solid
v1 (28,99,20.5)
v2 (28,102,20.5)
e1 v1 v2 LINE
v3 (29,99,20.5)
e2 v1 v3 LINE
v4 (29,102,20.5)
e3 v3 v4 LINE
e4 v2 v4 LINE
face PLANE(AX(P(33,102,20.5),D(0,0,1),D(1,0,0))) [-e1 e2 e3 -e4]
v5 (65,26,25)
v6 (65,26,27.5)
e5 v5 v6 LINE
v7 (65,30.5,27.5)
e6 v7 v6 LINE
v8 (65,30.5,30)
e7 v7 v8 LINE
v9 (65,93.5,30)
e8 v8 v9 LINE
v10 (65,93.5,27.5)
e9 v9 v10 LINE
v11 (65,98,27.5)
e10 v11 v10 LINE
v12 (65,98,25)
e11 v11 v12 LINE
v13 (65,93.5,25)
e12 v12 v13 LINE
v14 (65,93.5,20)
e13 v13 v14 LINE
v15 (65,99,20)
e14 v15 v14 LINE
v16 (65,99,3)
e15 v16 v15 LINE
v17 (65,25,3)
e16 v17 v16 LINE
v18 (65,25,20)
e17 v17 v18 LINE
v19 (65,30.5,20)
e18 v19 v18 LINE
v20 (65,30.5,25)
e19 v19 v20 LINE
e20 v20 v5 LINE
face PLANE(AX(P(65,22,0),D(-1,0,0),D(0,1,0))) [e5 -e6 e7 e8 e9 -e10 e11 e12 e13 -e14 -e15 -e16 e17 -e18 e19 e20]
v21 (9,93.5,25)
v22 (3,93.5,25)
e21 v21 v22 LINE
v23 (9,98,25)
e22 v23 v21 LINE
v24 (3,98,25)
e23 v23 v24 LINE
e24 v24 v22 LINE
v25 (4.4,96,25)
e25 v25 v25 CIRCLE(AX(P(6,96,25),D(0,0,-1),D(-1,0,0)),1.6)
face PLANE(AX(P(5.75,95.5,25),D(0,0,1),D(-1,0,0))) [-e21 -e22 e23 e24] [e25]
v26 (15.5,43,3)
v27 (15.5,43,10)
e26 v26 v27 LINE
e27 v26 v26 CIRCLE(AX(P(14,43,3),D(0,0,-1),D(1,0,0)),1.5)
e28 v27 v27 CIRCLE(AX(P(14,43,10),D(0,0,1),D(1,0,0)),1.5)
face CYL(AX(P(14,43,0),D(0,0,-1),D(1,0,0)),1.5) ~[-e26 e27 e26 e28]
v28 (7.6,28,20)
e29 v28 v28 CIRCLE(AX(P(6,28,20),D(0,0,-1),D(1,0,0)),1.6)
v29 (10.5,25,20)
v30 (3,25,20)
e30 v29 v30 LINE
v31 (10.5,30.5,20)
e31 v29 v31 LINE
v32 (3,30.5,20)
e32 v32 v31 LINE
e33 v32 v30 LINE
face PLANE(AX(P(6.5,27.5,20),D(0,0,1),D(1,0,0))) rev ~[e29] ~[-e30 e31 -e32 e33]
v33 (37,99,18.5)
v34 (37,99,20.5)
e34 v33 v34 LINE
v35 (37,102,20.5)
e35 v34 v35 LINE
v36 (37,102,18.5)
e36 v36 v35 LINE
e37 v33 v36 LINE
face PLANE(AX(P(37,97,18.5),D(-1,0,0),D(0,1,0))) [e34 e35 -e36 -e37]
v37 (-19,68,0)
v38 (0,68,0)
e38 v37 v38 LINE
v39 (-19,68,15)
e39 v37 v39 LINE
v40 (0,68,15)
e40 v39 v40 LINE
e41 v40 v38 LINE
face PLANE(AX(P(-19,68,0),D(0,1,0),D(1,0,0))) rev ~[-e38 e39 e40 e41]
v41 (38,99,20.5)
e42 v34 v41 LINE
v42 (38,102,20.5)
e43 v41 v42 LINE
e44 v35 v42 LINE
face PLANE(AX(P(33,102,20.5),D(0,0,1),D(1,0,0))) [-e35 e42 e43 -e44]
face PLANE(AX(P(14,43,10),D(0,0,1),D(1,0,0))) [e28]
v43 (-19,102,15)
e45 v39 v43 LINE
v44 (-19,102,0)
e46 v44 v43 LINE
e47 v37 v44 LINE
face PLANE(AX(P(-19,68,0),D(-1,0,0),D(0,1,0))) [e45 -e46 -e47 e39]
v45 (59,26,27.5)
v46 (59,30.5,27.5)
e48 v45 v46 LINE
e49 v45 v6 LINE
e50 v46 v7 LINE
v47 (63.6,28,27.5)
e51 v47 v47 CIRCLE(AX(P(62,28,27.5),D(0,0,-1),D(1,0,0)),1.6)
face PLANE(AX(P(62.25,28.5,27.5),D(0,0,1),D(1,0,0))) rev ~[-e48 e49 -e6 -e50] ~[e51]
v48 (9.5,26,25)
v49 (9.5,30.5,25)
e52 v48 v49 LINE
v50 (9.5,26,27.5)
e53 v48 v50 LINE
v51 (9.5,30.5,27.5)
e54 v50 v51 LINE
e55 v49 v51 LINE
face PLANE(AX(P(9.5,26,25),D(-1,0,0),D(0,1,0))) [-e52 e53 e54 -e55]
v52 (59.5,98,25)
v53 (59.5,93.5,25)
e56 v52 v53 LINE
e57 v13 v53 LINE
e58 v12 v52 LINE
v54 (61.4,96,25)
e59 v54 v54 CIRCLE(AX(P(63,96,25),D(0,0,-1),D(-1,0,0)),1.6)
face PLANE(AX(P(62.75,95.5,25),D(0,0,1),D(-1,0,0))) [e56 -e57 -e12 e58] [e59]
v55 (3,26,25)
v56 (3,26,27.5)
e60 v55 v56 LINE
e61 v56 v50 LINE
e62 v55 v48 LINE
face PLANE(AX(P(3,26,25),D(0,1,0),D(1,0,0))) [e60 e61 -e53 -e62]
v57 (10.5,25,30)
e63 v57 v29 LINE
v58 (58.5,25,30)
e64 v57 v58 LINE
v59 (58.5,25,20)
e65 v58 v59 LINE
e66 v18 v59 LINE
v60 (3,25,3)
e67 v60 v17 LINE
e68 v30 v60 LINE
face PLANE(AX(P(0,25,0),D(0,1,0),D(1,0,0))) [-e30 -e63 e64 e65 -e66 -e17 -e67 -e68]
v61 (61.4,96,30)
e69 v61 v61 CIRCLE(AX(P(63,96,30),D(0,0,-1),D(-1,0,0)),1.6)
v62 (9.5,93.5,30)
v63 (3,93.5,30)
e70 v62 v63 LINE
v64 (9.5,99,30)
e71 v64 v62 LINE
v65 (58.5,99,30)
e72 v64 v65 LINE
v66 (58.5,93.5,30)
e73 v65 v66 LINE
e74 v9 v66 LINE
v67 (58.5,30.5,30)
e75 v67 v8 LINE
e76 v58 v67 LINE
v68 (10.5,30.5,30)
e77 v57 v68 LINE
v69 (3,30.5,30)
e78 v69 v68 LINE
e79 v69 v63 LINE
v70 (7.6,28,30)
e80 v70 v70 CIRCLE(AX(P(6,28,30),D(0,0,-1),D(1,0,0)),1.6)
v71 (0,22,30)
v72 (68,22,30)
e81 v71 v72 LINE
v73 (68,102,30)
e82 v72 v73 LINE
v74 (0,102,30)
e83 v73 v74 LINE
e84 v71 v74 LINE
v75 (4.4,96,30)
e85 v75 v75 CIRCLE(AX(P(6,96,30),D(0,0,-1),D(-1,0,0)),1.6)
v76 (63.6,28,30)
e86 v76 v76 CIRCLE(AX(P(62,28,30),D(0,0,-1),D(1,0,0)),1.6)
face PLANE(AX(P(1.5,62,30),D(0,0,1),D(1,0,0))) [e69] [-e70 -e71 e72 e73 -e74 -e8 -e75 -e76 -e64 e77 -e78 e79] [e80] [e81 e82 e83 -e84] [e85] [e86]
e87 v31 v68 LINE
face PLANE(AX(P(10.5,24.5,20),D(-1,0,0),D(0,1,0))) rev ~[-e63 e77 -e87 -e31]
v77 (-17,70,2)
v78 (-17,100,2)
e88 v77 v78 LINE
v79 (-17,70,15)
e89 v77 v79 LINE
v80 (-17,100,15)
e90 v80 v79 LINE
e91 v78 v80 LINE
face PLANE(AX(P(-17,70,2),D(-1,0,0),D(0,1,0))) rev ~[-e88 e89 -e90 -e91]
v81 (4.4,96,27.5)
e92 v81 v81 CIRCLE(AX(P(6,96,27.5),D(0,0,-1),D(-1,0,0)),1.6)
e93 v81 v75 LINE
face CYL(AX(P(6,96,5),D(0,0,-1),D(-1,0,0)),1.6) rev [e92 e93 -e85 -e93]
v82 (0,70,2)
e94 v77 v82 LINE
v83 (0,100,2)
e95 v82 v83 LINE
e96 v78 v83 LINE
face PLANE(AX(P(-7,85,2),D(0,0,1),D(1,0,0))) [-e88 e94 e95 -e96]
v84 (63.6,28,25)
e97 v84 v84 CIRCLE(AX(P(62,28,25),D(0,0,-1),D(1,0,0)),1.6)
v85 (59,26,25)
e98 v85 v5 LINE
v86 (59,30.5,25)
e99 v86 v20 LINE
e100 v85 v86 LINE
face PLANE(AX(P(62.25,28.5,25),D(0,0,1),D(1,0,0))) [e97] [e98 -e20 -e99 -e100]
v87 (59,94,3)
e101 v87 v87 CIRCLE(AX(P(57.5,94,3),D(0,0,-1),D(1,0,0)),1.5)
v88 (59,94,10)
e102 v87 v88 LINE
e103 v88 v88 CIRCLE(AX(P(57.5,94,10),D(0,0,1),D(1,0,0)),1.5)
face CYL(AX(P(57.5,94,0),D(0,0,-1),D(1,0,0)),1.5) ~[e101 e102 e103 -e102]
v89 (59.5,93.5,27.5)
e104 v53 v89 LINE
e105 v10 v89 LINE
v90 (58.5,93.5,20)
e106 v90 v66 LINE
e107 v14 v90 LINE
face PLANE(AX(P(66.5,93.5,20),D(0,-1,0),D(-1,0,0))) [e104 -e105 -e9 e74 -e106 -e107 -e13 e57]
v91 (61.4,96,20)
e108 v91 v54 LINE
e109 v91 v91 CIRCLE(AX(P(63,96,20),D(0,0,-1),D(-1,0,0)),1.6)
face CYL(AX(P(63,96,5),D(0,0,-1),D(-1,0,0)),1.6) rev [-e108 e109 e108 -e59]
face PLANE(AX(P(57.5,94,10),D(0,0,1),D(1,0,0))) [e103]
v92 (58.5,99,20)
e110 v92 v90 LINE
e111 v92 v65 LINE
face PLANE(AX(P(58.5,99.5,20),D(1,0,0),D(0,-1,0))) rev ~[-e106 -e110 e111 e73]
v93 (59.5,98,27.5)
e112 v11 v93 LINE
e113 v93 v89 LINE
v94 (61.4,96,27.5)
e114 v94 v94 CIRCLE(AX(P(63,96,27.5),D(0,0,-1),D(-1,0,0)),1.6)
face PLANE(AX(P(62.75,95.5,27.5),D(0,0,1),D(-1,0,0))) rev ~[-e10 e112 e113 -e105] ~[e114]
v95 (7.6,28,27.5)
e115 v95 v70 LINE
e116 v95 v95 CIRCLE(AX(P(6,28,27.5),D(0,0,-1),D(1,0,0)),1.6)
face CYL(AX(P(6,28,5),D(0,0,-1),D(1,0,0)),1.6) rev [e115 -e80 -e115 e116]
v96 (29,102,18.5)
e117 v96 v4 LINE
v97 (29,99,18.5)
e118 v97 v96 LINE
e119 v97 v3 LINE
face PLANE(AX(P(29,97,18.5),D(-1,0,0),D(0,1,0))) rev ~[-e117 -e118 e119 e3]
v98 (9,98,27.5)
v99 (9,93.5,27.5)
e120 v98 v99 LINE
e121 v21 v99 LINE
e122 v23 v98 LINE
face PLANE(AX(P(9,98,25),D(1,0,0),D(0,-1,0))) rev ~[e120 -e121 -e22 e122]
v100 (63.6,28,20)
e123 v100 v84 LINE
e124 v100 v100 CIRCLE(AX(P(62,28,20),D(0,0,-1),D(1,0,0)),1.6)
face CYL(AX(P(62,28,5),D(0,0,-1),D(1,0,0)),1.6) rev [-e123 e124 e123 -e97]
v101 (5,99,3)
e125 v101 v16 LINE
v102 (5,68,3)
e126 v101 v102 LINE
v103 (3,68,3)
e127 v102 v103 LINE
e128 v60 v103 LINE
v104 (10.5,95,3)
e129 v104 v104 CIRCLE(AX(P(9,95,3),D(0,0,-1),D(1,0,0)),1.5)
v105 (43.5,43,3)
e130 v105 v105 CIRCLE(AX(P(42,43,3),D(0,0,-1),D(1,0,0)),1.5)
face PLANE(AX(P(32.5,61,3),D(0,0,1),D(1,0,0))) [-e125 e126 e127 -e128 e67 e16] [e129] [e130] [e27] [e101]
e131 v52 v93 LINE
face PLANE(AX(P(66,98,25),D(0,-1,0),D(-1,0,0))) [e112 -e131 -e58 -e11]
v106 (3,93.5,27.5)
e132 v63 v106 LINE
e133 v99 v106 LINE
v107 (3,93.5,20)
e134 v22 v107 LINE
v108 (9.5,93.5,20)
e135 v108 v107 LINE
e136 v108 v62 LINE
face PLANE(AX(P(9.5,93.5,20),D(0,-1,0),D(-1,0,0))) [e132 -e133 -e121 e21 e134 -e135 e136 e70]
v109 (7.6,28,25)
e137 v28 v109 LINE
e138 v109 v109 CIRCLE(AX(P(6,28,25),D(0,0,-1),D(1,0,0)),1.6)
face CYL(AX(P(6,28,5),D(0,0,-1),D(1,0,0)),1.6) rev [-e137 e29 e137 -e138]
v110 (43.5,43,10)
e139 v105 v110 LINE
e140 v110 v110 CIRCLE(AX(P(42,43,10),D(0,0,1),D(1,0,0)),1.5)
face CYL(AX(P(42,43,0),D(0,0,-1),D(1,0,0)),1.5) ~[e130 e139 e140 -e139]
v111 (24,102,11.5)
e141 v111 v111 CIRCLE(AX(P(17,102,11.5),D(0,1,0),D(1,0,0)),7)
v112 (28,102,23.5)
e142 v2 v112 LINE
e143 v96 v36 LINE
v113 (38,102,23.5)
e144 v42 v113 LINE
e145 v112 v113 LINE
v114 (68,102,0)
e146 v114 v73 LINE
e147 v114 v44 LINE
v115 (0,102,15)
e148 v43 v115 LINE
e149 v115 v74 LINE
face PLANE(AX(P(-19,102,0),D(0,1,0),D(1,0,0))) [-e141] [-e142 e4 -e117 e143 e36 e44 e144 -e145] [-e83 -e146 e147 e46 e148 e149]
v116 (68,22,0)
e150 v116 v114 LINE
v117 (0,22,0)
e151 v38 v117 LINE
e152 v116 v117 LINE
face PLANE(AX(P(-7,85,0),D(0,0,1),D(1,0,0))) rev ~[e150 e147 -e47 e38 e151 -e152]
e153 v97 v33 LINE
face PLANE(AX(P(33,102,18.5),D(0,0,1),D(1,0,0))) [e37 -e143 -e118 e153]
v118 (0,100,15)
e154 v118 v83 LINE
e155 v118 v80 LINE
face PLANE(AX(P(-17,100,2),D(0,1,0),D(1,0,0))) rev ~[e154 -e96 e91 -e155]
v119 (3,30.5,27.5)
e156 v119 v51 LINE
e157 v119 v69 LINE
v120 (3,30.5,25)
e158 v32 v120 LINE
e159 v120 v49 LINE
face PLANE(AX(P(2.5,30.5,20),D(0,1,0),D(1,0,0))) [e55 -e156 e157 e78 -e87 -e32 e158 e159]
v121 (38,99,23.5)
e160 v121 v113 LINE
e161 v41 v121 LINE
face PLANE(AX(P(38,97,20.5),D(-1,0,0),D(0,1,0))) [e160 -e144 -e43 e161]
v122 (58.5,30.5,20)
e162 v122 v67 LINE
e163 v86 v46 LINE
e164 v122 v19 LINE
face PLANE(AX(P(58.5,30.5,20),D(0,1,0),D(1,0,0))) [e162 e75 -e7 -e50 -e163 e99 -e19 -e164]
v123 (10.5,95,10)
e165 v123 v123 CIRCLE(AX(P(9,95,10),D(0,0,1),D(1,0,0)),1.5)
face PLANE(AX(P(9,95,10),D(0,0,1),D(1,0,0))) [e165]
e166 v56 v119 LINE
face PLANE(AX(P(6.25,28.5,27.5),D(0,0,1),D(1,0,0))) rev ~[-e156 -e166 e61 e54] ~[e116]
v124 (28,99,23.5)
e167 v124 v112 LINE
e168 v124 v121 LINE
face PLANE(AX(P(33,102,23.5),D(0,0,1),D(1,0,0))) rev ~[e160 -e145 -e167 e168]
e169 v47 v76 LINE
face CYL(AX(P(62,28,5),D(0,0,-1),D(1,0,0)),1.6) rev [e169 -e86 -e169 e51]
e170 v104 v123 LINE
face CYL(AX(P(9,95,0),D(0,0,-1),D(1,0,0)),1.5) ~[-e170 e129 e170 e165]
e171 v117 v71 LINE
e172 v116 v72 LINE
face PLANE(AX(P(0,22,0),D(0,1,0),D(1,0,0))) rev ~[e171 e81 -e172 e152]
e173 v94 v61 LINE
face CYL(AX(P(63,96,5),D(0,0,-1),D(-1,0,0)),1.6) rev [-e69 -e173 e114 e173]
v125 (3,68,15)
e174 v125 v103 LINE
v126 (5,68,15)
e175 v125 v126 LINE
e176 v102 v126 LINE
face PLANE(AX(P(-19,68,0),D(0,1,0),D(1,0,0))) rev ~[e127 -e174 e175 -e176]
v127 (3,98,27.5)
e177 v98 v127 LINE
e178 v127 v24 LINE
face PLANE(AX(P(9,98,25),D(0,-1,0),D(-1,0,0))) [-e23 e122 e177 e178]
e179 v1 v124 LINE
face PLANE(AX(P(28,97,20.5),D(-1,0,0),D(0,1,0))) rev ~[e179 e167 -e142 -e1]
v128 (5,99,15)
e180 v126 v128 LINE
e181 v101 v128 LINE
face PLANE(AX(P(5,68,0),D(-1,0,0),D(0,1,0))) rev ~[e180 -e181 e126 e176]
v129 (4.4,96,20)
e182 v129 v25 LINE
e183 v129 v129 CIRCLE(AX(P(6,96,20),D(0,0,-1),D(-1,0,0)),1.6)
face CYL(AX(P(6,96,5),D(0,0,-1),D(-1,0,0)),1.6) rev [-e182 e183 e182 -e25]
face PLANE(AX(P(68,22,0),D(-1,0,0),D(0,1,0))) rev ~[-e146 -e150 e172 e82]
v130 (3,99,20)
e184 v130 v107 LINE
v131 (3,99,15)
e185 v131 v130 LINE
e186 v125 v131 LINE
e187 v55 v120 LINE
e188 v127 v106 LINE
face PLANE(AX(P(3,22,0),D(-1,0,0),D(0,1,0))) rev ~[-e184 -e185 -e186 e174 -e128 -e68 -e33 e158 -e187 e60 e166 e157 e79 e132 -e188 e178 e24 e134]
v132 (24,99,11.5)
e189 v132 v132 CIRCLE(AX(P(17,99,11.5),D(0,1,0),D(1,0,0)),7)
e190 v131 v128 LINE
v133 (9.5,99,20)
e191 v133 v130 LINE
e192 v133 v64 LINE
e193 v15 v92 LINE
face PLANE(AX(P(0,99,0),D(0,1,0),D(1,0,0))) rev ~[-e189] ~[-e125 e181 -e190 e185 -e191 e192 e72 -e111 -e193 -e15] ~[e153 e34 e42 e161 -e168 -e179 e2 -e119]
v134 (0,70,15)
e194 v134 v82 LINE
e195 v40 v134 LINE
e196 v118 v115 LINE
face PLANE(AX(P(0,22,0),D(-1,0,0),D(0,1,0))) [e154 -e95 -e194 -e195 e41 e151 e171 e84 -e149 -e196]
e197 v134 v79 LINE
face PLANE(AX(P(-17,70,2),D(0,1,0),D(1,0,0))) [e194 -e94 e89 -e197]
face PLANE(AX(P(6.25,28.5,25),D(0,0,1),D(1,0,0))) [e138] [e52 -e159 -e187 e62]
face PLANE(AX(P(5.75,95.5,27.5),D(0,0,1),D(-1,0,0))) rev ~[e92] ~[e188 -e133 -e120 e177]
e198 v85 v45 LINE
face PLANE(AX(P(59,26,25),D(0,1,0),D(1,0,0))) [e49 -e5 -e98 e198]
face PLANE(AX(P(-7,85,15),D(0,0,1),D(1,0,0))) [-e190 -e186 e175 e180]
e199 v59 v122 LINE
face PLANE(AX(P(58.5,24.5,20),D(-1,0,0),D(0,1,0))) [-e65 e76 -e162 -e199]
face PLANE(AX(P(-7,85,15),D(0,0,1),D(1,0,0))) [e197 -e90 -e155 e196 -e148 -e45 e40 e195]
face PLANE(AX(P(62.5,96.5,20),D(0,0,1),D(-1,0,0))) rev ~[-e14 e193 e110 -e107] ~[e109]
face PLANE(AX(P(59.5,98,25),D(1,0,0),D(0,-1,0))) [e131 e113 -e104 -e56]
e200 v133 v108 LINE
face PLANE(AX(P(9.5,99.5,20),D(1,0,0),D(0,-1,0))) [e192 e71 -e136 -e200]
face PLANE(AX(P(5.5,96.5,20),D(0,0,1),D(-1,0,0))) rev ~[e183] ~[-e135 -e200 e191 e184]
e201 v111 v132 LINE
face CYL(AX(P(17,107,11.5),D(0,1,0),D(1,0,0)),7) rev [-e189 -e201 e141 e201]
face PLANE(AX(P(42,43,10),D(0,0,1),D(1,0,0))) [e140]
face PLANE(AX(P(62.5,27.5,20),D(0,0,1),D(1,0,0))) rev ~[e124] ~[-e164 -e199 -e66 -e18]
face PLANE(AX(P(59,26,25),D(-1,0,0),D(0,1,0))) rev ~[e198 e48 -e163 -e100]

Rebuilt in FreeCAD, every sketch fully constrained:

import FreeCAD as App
import Part
import Sketcher

V = App.Vector


def add_polygon(sketch, points):
    """Adds a closed chain of lines whose ends are joined by coincident constraints."""
    first, n = sketch.GeometryCount, len(points)
    for a, b in zip(points, points[1:] + points[:1]):
        sketch.addGeometry(Part.LineSegment(App.Vector(*a, 0), App.Vector(*b, 0)), False)
    for i in range(n):
        sketch.addConstraint(Sketcher.Constraint("Coincident", first + i, 2, first + (i + 1) % n, 1))

doc = App.newDocument("Part")
body = doc.addObject("PartDesign::Body", "Body")

sketch1 = body.newObject("Sketcher::SketchObject", "Sketch")
sketch1.AttachmentSupport = (doc.getObject("XY_Plane"), [""])
sketch1.MapMode = "FlatFace"
sketch1.AttachmentOffset = App.Placement(V(0, 0, 2), App.Rotation())
add_polygon(sketch1, [(-17, 100), (-17, 70), (3, 70), (3, 100)])
sketch1.addConstraint(Sketcher.Constraint("Vertical", 0))
sketch1.addConstraint(Sketcher.Constraint("Horizontal", 1))
sketch1.addConstraint(Sketcher.Constraint("Vertical", 2))
sketch1.addConstraint(Sketcher.Constraint("Horizontal", 3))
sketch1.addConstraint(Sketcher.Constraint("DistanceX", 1, 1, 1, 2, 20.0))
sketch1.addConstraint(Sketcher.Constraint("DistanceY", 0, 2, 0, 1, 30.0))
sketch1.addConstraint(Sketcher.Constraint("DistanceX", 0, 2, -1, 1, 17.0))
sketch1.addConstraint(Sketcher.Constraint("DistanceY", -1, 1, 0, 2, 70.0))
pad1 = body.newObject("PartDesign::Pad", "Pad")
pad1.Profile = sketch1
pad1.Length = 15
body2 = doc.addObject("PartDesign::Body", "Body001")

sketch2 = body2.newObject("Sketcher::SketchObject", "Sketch001")
sketch2.AttachmentSupport = (doc.getObject("XY_Plane001"), [""])
sketch2.MapMode = "FlatFace"
add_polygon(sketch2, [(-19, 102), (-19, 68), (5, 68), (5, 102)])
sketch2.addConstraint(Sketcher.Constraint("Vertical", 0))
sketch2.addConstraint(Sketcher.Constraint("Horizontal", 1))
sketch2.addConstraint(Sketcher.Constraint("Vertical", 2))
sketch2.addConstraint(Sketcher.Constraint("Horizontal", 3))
sketch2.addConstraint(Sketcher.Constraint("DistanceX", 1, 1, 1, 2, 24.0))
sketch2.addConstraint(Sketcher.Constraint("DistanceY", 0, 2, 0, 1, 34.0))
sketch2.addConstraint(Sketcher.Constraint("DistanceX", 0, 2, -1, 1, 19.0))
sketch2.addConstraint(Sketcher.Constraint("DistanceY", -1, 1, 0, 2, 68.0))
pad2 = body2.newObject("PartDesign::Pad", "Pad001")
pad2.Profile = sketch2
pad2.Length = 15
doc.recompute()

boolean = body2.newObject("PartDesign::Boolean", "Boolean")
boolean.Type = "Cut"
boolean.addObjects([body])
body3 = doc.addObject("PartDesign::Body", "Body002")

sketch3 = body3.newObject("Sketcher::SketchObject", "Sketch002")
sketch3.AttachmentSupport = (doc.getObject("XY_Plane002"), [""])
sketch3.MapMode = "FlatFace"
sketch3.addGeometry(Part.Circle(V(6, 29, 0), V(0, 0, 1), 1.6), False)
sketch3.addConstraint(Sketcher.Constraint("Diameter", 0, 3.2))
sketch3.addConstraint(Sketcher.Constraint("DistanceX", -1, 1, 0, 3, 6.0))
sketch3.addConstraint(Sketcher.Constraint("DistanceY", -1, 1, 0, 3, 29.0))
pad3 = body3.newObject("PartDesign::Pad", "Pad002")
pad3.Profile = sketch3
pad3.Length = 30
body4 = doc.addObject("PartDesign::Body", "Body003")

sketch4 = body4.newObject("Sketcher::SketchObject", "Sketch003")
sketch4.AttachmentSupport = (doc.getObject("XY_Plane003"), [""])
sketch4.MapMode = "FlatFace"
sketch4.AttachmentOffset = App.Placement(V(0, 0, 20), App.Rotation())
add_polygon(sketch4, [(3, 32), (3, 27), (10, 27), (10, 32)])
sketch4.addConstraint(Sketcher.Constraint("Vertical", 0))
sketch4.addConstraint(Sketcher.Constraint("Horizontal", 1))
sketch4.addConstraint(Sketcher.Constraint("Vertical", 2))
sketch4.addConstraint(Sketcher.Constraint("Horizontal", 3))
sketch4.addConstraint(Sketcher.Constraint("DistanceY", 0, 2, 0, 1, 5.0))
sketch4.addConstraint(Sketcher.Constraint("DistanceX", 1, 1, 1, 2, 6.5))
sketch4.addConstraint(Sketcher.Constraint("DistanceX", -1, 1, 0, 2, 3.0))
sketch4.addConstraint(Sketcher.Constraint("DistanceY", -1, 1, 0, 2, 27.0))
pad4 = body4.newObject("PartDesign::Pad", "Pad003")
pad4.Profile = sketch4
pad4.Length = 2.5
body5 = doc.addObject("PartDesign::Body", "Body004")

sketch5 = body5.newObject("Sketcher::SketchObject", "Sketch004")
sketch5.AttachmentSupport = (doc.getObject("XY_Plane004"), [""])
sketch5.MapMode = "FlatFace"
sketch5.AttachmentOffset = App.Placement(V(0, 0, 15), App.Rotation())
add_polygon(sketch5, [(2, 32), (2, 26), (10, 26), (10, 32)])
sketch5.addConstraint(Sketcher.Constraint("Vertical", 0))
sketch5.addConstraint(Sketcher.Constraint("Horizontal", 1))
sketch5.addConstraint(Sketcher.Constraint("Vertical", 2))
sketch5.addConstraint(Sketcher.Constraint("Horizontal", 3))
sketch5.addConstraint(Sketcher.Constraint("DistanceX", 1, 1, 1, 2, 8.0))
sketch5.addConstraint(Sketcher.Constraint("DistanceY", 0, 2, 0, 1, 6.0))
sketch5.addConstraint(Sketcher.Constraint("DistanceX", -1, 1, 0, 2, 2.5))
sketch5.addConstraint(Sketcher.Constraint("DistanceY", -1, 1, 0, 2, 25.5))
pad5 = body5.newObject("PartDesign::Pad", "Pad004")
pad5.Profile = sketch5
pad5.Length = 10
doc.recompute()

boolean2 = body5.newObject("PartDesign::Boolean", "Boolean001")
boolean2.Type = "Cut"
boolean2.addObjects([body4])
doc.recompute()

boolean3 = body5.newObject("PartDesign::Boolean", "Boolean002")
boolean3.Type = "Cut"
boolean3.addObjects([body3])
body6 = doc.addObject("PartDesign::Body", "Body005")
doc.recompute()

body5.Placement = App.Placement(V(69, 125, 5), App.Rotation(V(0, 0, 1), 180))
boolean4 = body6.newObject("PartDesign::Boolean", "Boolean003")
boolean4.Type = "Fuse"
boolean4.addObjects([body5])
body7 = doc.addObject("PartDesign::Body", "Body006")

sketch6 = body7.newObject("Sketcher::SketchObject", "Sketch005")
sketch6.AttachmentSupport = (doc.getObject("XY_Plane006"), [""])
sketch6.MapMode = "FlatFace"
sketch6.addGeometry(Part.Circle(V(6, 29, 0), V(0, 0, 1), 1.6), False)
sketch6.addConstraint(Sketcher.Constraint("Diameter", 0, 3.2))
sketch6.addConstraint(Sketcher.Constraint("DistanceX", -1, 1, 0, 3, 6.0))
sketch6.addConstraint(Sketcher.Constraint("DistanceY", -1, 1, 0, 3, 29.0))
pad6 = body7.newObject("PartDesign::Pad", "Pad005")
pad6.Profile = sketch6
pad6.Length = 30
body8 = doc.addObject("PartDesign::Body", "Body007")

sketch7 = body8.newObject("Sketcher::SketchObject", "Sketch006")
sketch7.AttachmentSupport = (doc.getObject("XY_Plane007"), [""])
sketch7.MapMode = "FlatFace"
sketch7.AttachmentOffset = App.Placement(V(0, 0, 20), App.Rotation())
add_polygon(sketch7, [(3, 32), (3, 27), (10, 27), (10, 32)])
sketch7.addConstraint(Sketcher.Constraint("Vertical", 0))
sketch7.addConstraint(Sketcher.Constraint("Horizontal", 1))
sketch7.addConstraint(Sketcher.Constraint("Vertical", 2))
sketch7.addConstraint(Sketcher.Constraint("Horizontal", 3))
sketch7.addConstraint(Sketcher.Constraint("DistanceY", 0, 2, 0, 1, 5.0))
sketch7.addConstraint(Sketcher.Constraint("DistanceX", 1, 1, 1, 2, 6.5))
sketch7.addConstraint(Sketcher.Constraint("DistanceX", -1, 1, 0, 2, 3.0))
sketch7.addConstraint(Sketcher.Constraint("DistanceY", -1, 1, 0, 2, 27.0))
pad7 = body8.newObject("PartDesign::Pad", "Pad006")
pad7.Profile = sketch7
pad7.Length = 2.5
body9 = doc.addObject("PartDesign::Body", "Body008")

sketch8 = body9.newObject("Sketcher::SketchObject", "Sketch007")
sketch8.AttachmentSupport = (doc.getObject("XY_Plane008"), [""])
sketch8.MapMode = "FlatFace"
sketch8.AttachmentOffset = App.Placement(V(0, 0, 15), App.Rotation())
add_polygon(sketch8, [(2, 32), (2, 26), (10, 26), (10, 32)])
sketch8.addConstraint(Sketcher.Constraint("Vertical", 0))
sketch8.addConstraint(Sketcher.Constraint("Horizontal", 1))
sketch8.addConstraint(Sketcher.Constraint("Vertical", 2))
sketch8.addConstraint(Sketcher.Constraint("Horizontal", 3))
sketch8.addConstraint(Sketcher.Constraint("DistanceX", 1, 1, 1, 2, 8.0))
sketch8.addConstraint(Sketcher.Constraint("DistanceY", 0, 2, 0, 1, 6.0))
sketch8.addConstraint(Sketcher.Constraint("DistanceX", -1, 1, 0, 2, 2.5))
sketch8.addConstraint(Sketcher.Constraint("DistanceY", -1, 1, 0, 2, 25.5))
pad8 = body9.newObject("PartDesign::Pad", "Pad007")
pad8.Profile = sketch8
pad8.Length = 10
doc.recompute()

boolean5 = body9.newObject("PartDesign::Boolean", "Boolean004")
boolean5.Type = "Cut"
boolean5.addObjects([body8])
doc.recompute()

boolean6 = body9.newObject("PartDesign::Boolean", "Boolean005")
boolean6.Type = "Cut"
boolean6.addObjects([body7])
body10 = doc.addObject("PartDesign::Body", "Body009")
doc.recompute()

body9.Placement = App.Placement(V(56, -1, 5), App.Rotation(V(0, 0, 1), 0))
boolean7 = body10.newObject("PartDesign::Boolean", "Boolean006")
boolean7.Type = "Fuse"
boolean7.addObjects([body9])
body11 = doc.addObject("PartDesign::Body", "Body010")

sketch9 = body11.newObject("Sketcher::SketchObject", "Sketch008")
sketch9.AttachmentSupport = (doc.getObject("XY_Plane010"), [""])
sketch9.MapMode = "FlatFace"
sketch9.addGeometry(Part.Circle(V(6, 29, 0), V(0, 0, 1), 1.6), False)
sketch9.addConstraint(Sketcher.Constraint("Diameter", 0, 3.2))
sketch9.addConstraint(Sketcher.Constraint("DistanceX", -1, 1, 0, 3, 6.0))
sketch9.addConstraint(Sketcher.Constraint("DistanceY", -1, 1, 0, 3, 29.0))
pad9 = body11.newObject("PartDesign::Pad", "Pad008")
pad9.Profile = sketch9
pad9.Length = 30
body12 = doc.addObject("PartDesign::Body", "Body011")

sketch10 = body12.newObject("Sketcher::SketchObject", "Sketch009")
sketch10.AttachmentSupport = (doc.getObject("XY_Plane011"), [""])
sketch10.MapMode = "FlatFace"
sketch10.AttachmentOffset = App.Placement(V(0, 0, 20), App.Rotation())
add_polygon(sketch10, [(3, 32), (3, 27), (10, 27), (10, 32)])
sketch10.addConstraint(Sketcher.Constraint("Vertical", 0))
sketch10.addConstraint(Sketcher.Constraint("Horizontal", 1))
sketch10.addConstraint(Sketcher.Constraint("Vertical", 2))
sketch10.addConstraint(Sketcher.Constraint("Horizontal", 3))
sketch10.addConstraint(Sketcher.Constraint("DistanceY", 0, 2, 0, 1, 5.0))
sketch10.addConstraint(Sketcher.Constraint("DistanceX", 1, 1, 1, 2, 6.5))
sketch10.addConstraint(Sketcher.Constraint("DistanceX", -1, 1, 0, 2, 3.0))
sketch10.addConstraint(Sketcher.Constraint("DistanceY", -1, 1, 0, 2, 27.0))
pad10 = body12.newObject("PartDesign::Pad", "Pad009")
pad10.Profile = sketch10
pad10.Length = 2.5
body13 = doc.addObject("PartDesign::Body", "Body012")

sketch11 = body13.newObject("Sketcher::SketchObject", "Sketch010")
sketch11.AttachmentSupport = (doc.getObject("XY_Plane012"), [""])
sketch11.MapMode = "FlatFace"
sketch11.AttachmentOffset = App.Placement(V(0, 0, 15), App.Rotation())
add_polygon(sketch11, [(2, 32), (2, 26), (10, 26), (10, 32)])
sketch11.addConstraint(Sketcher.Constraint("Vertical", 0))
sketch11.addConstraint(Sketcher.Constraint("Horizontal", 1))
sketch11.addConstraint(Sketcher.Constraint("Vertical", 2))
sketch11.addConstraint(Sketcher.Constraint("Horizontal", 3))
sketch11.addConstraint(Sketcher.Constraint("DistanceX", 1, 1, 1, 2, 8.0))
sketch11.addConstraint(Sketcher.Constraint("DistanceY", 0, 2, 0, 1, 6.0))
sketch11.addConstraint(Sketcher.Constraint("DistanceX", -1, 1, 0, 2, 2.5))
sketch11.addConstraint(Sketcher.Constraint("DistanceY", -1, 1, 0, 2, 25.5))
pad11 = body13.newObject("PartDesign::Pad", "Pad010")
pad11.Profile = sketch11
pad11.Length = 10
doc.recompute()

boolean8 = body13.newObject("PartDesign::Boolean", "Boolean007")
boolean8.Type = "Cut"
boolean8.addObjects([body12])
doc.recompute()

boolean9 = body13.newObject("PartDesign::Boolean", "Boolean008")
boolean9.Type = "Cut"
boolean9.addObjects([body11])
body14 = doc.addObject("PartDesign::Body", "Body013")
doc.recompute()

body13.Placement = App.Placement(V(0, -1, 5), App.Rotation(V(0, 0, 1), 0))
boolean10 = body14.newObject("PartDesign::Boolean", "Boolean009")
boolean10.Type = "Fuse"
boolean10.addObjects([body13])
body15 = doc.addObject("PartDesign::Body", "Body014")

sketch12 = body15.newObject("Sketcher::SketchObject", "Sketch011")
sketch12.AttachmentSupport = (doc.getObject("XY_Plane014"), [""])
sketch12.MapMode = "FlatFace"
add_polygon(sketch12, [(65, 102), (65, 22), (68, 22), (68, 102)])
sketch12.addConstraint(Sketcher.Constraint("Vertical", 0))
sketch12.addConstraint(Sketcher.Constraint("Horizontal", 1))
sketch12.addConstraint(Sketcher.Constraint("Vertical", 2))
sketch12.addConstraint(Sketcher.Constraint("Horizontal", 3))
sketch12.addConstraint(Sketcher.Constraint("DistanceX", 1, 1, 1, 2, 3.0))
sketch12.addConstraint(Sketcher.Constraint("DistanceY", 0, 2, 0, 1, 80.0))
sketch12.addConstraint(Sketcher.Constraint("DistanceX", -1, 1, 0, 2, 65.0))
sketch12.addConstraint(Sketcher.Constraint("DistanceY", -1, 1, 0, 2, 22.0))
pad12 = body15.newObject("PartDesign::Pad", "Pad011")
pad12.Profile = sketch12
pad12.Length = 30
body16 = doc.addObject("PartDesign::Body", "Body015")

sketch13 = body16.newObject("Sketcher::SketchObject", "Sketch012")
sketch13.AttachmentSupport = (doc.getObject("XY_Plane015"), [""])
sketch13.MapMode = "FlatFace"
add_polygon(sketch13, [(0, 102), (0, 22), (3, 22), (3, 102)])
sketch13.addConstraint(Sketcher.Constraint("Vertical", 0))
sketch13.addConstraint(Sketcher.Constraint("Horizontal", 1))
sketch13.addConstraint(Sketcher.Constraint("Vertical", 2))
sketch13.addConstraint(Sketcher.Constraint("Horizontal", 3))
sketch13.addConstraint(Sketcher.Constraint("PointOnObject", 0, 2, -2))
sketch13.addConstraint(Sketcher.Constraint("DistanceX", 1, 1, 1, 2, 3.0))
sketch13.addConstraint(Sketcher.Constraint("DistanceY", 0, 2, 0, 1, 80.0))
sketch13.addConstraint(Sketcher.Constraint("DistanceY", -1, 1, 0, 2, 22.0))
pad13 = body16.newObject("PartDesign::Pad", "Pad012")
pad13.Profile = sketch13
pad13.Length = 30
body17 = doc.addObject("PartDesign::Body", "Body016")

sketch14 = body17.newObject("Sketcher::SketchObject", "Sketch013")
sketch14.AttachmentSupport = (doc.getObject("XY_Plane016"), [""])
sketch14.MapMode = "FlatFace"
add_polygon(sketch14, [(0, 25), (0, 22), (65, 22), (65, 25)])
sketch14.addConstraint(Sketcher.Constraint("Vertical", 0))
sketch14.addConstraint(Sketcher.Constraint("Horizontal", 1))
sketch14.addConstraint(Sketcher.Constraint("Vertical", 2))
sketch14.addConstraint(Sketcher.Constraint("Horizontal", 3))
sketch14.addConstraint(Sketcher.Constraint("PointOnObject", 0, 2, -2))
sketch14.addConstraint(Sketcher.Constraint("DistanceX", 1, 1, 1, 2, 65.0))
sketch14.addConstraint(Sketcher.Constraint("DistanceY", 0, 2, 0, 1, 3.0))
sketch14.addConstraint(Sketcher.Constraint("DistanceY", -1, 1, 0, 2, 22.0))
pad14 = body17.newObject("PartDesign::Pad", "Pad013")
pad14.Profile = sketch14
pad14.Length = 30
body18 = doc.addObject("PartDesign::Body", "Body017")

sketch15 = body18.newObject("Sketcher::SketchObject", "Sketch014")
sketch15.AttachmentSupport = (doc.getObject("XY_Plane017"), [""])
sketch15.MapMode = "FlatFace"
sketch15.addGeometry(Part.Circle(V(42, 43, 0), V(0, 0, 1), 1.5), False)
sketch15.addConstraint(Sketcher.Constraint("Diameter", 0, 3.0))
sketch15.addConstraint(Sketcher.Constraint("DistanceX", -1, 1, 0, 3, 42.0))
sketch15.addConstraint(Sketcher.Constraint("DistanceY", -1, 1, 0, 3, 43.0))
pad15 = body18.newObject("PartDesign::Pad", "Pad014")
pad15.Profile = sketch15
pad15.Length = 10
body19 = doc.addObject("PartDesign::Body", "Body018")

sketch16 = body19.newObject("Sketcher::SketchObject", "Sketch015")
sketch16.AttachmentSupport = (doc.getObject("XY_Plane018"), [""])
sketch16.MapMode = "FlatFace"
sketch16.addGeometry(Part.Circle(V(57.5, 94, 0), V(0, 0, 1), 1.5), False)
sketch16.addConstraint(Sketcher.Constraint("Diameter", 0, 3.0))
sketch16.addConstraint(Sketcher.Constraint("DistanceY", -1, 1, 0, 3, 94.0))
sketch16.addConstraint(Sketcher.Constraint("DistanceX", -1, 1, 0, 3, 57.5))
pad16 = body19.newObject("PartDesign::Pad", "Pad015")
pad16.Profile = sketch16
pad16.Length = 10
body20 = doc.addObject("PartDesign::Body", "Body019")

sketch17 = body20.newObject("Sketcher::SketchObject", "Sketch016")
sketch17.AttachmentSupport = (doc.getObject("XY_Plane019"), [""])
sketch17.MapMode = "FlatFace"
sketch17.addGeometry(Part.Circle(V(9, 95, 0), V(0, 0, 1), 1.5), False)
sketch17.addConstraint(Sketcher.Constraint("Diameter", 0, 3.0))
sketch17.addConstraint(Sketcher.Constraint("DistanceX", -1, 1, 0, 3, 9.0))
sketch17.addConstraint(Sketcher.Constraint("DistanceY", -1, 1, 0, 3, 95.0))
pad17 = body20.newObject("PartDesign::Pad", "Pad016")
pad17.Profile = sketch17
pad17.Length = 10
body21 = doc.addObject("PartDesign::Body", "Body020")

sketch18 = body21.newObject("Sketcher::SketchObject", "Sketch017")
sketch18.AttachmentSupport = (doc.getObject("XY_Plane020"), [""])
sketch18.MapMode = "FlatFace"
add_polygon(sketch18, [(0, 100), (0, 22), (65, 22), (65, 100)])
sketch18.addConstraint(Sketcher.Constraint("Vertical", 0))
sketch18.addConstraint(Sketcher.Constraint("Horizontal", 1))
sketch18.addConstraint(Sketcher.Constraint("Vertical", 2))
sketch18.addConstraint(Sketcher.Constraint("Horizontal", 3))
sketch18.addConstraint(Sketcher.Constraint("PointOnObject", 0, 2, -2))
sketch18.addConstraint(Sketcher.Constraint("DistanceX", 1, 1, 1, 2, 65.0))
sketch18.addConstraint(Sketcher.Constraint("DistanceY", 0, 2, 0, 1, 78.0))
sketch18.addConstraint(Sketcher.Constraint("DistanceY", -1, 1, 0, 2, 22.0))
pad18 = body21.newObject("PartDesign::Pad", "Pad017")
pad18.Profile = sketch18
pad18.Length = 3
body22 = doc.addObject("PartDesign::Body", "Body021")
body22.AllowCompound = True

sketch19 = body22.newObject("Sketcher::SketchObject", "Sketch018")
sketch19.AttachmentSupport = (doc.getObject("XY_Plane021"), [""])
sketch19.MapMode = "FlatFace"
sketch19.addGeometry(Part.Circle(V(14, 43, 0), V(0, 0, 1), 1.5), False)
sketch19.addConstraint(Sketcher.Constraint("Diameter", 0, 3.0))
sketch19.addConstraint(Sketcher.Constraint("DistanceX", -1, 1, 0, 3, 14.0))
sketch19.addConstraint(Sketcher.Constraint("DistanceY", -1, 1, 0, 3, 43.0))
pad19 = body22.newObject("PartDesign::Pad", "Pad018")
pad19.Profile = sketch19
pad19.Length = 10
doc.recompute()

boolean11 = body22.newObject("PartDesign::Boolean", "Boolean010")
boolean11.Type = "Fuse"
boolean11.addObjects([body18])
doc.recompute()

boolean12 = body22.newObject("PartDesign::Boolean", "Boolean011")
boolean12.Type = "Fuse"
boolean12.addObjects([body19])
doc.recompute()

boolean13 = body22.newObject("PartDesign::Boolean", "Boolean012")
boolean13.Type = "Fuse"
boolean13.addObjects([body20])
doc.recompute()

boolean14 = body22.newObject("PartDesign::Boolean", "Boolean013")
boolean14.Type = "Fuse"
boolean14.addObjects([body21])
body23 = doc.addObject("PartDesign::Body", "Body022")

sketch20 = body23.newObject("Sketcher::SketchObject", "Sketch019")
sketch20.AttachmentSupport = (doc.getObject("XY_Plane022"), [""])
sketch20.MapMode = "FlatFace"
sketch20.AttachmentOffset = App.Placement(V(0, 0, 20), App.Rotation())
add_polygon(sketch20, [(28, 106), (28, 96), (38, 96), (38, 106)])
sketch20.addConstraint(Sketcher.Constraint("Vertical", 0))
sketch20.addConstraint(Sketcher.Constraint("Horizontal", 1))
sketch20.addConstraint(Sketcher.Constraint("Vertical", 2))
sketch20.addConstraint(Sketcher.Constraint("Horizontal", 3))
sketch20.addConstraint(Sketcher.Constraint("Equal", 3, 0))
sketch20.addConstraint(Sketcher.Constraint("DistanceX", 1, 1, 1, 2, 10.0))
sketch20.addConstraint(Sketcher.Constraint("DistanceX", -1, 1, 0, 2, 28.0))
sketch20.addConstraint(Sketcher.Constraint("DistanceY", -1, 1, 0, 2, 96.0))
pad20 = body23.newObject("PartDesign::Pad", "Pad019")
pad20.Profile = sketch20
pad20.Length = 3
body24 = doc.addObject("PartDesign::Body", "Body023")

sketch21 = body24.newObject("Sketcher::SketchObject", "Sketch020")
sketch21.AttachmentSupport = (doc.getObject("XY_Plane023"), [""])
sketch21.MapMode = "FlatFace"
sketch21.AttachmentOffset = App.Placement(V(0, 0, 18), App.Rotation())
add_polygon(sketch21, [(29, 106), (29, 96), (37, 96), (37, 106)])
sketch21.addConstraint(Sketcher.Constraint("Vertical", 0))
sketch21.addConstraint(Sketcher.Constraint("Horizontal", 1))
sketch21.addConstraint(Sketcher.Constraint("Vertical", 2))
sketch21.addConstraint(Sketcher.Constraint("Horizontal", 3))
sketch21.addConstraint(Sketcher.Constraint("DistanceX", 1, 1, 1, 2, 8.0))
sketch21.addConstraint(Sketcher.Constraint("DistanceY", 0, 2, 0, 1, 10.0))
sketch21.addConstraint(Sketcher.Constraint("DistanceX", -1, 1, 0, 2, 29.0))
sketch21.addConstraint(Sketcher.Constraint("DistanceY", -1, 1, 0, 2, 96.0))
pad21 = body24.newObject("PartDesign::Pad", "Pad020")
pad21.Profile = sketch21
pad21.Length = 3
doc.recompute()

boolean15 = body24.newObject("PartDesign::Boolean", "Boolean014")
boolean15.Type = "Fuse"
boolean15.addObjects([body23])
body25 = doc.addObject("PartDesign::Body", "Body024")
doc.recompute()

body24.Placement = App.Placement(V(0, 0, 1), App.Rotation(V(0, 0, 1), 0))
boolean16 = body25.newObject("PartDesign::Boolean", "Boolean015")
boolean16.Type = "Fuse"
boolean16.addObjects([body24])
body26 = doc.addObject("PartDesign::Body", "Body025")
body26.AllowCompound = True

sketch22 = body26.newObject("Sketcher::SketchObject", "Sketch021")
sketch22.AttachmentSupport = (doc.getObject("XZ_Plane025"), [""])
sketch22.MapMode = "FlatFace"
sketch22.AttachmentOffset = App.Placement(V(0, 0, -106), App.Rotation())
sketch22.addGeometry(Part.Circle(V(17, 12, 0), V(0, 0, 1), 7), False)
sketch22.addConstraint(Sketcher.Constraint("Diameter", 0, 14.0))
sketch22.addConstraint(Sketcher.Constraint("DistanceX", -1, 1, 0, 3, 17.0))
sketch22.addConstraint(Sketcher.Constraint("DistanceY", -1, 1, 0, 3, 12.0))
pad22 = body26.newObject("PartDesign::Pad", "Pad021")
pad22.Profile = sketch22
pad22.Length = 10
doc.recompute()

boolean17 = body26.newObject("PartDesign::Boolean", "Boolean016")
boolean17.Type = "Fuse"
boolean17.addObjects([body25])
body27 = doc.addObject("PartDesign::Body", "Body026")
body27.AllowCompound = True
doc.recompute()

body26.Placement = App.Placement(V(0, 1, -0.5), App.Rotation(V(0, 0, 1), 0))
boolean18 = body27.newObject("PartDesign::Boolean", "Boolean017")
boolean18.Type = "Fuse"
boolean18.addObjects([body26])
body28 = doc.addObject("PartDesign::Body", "Body027")

sketch23 = body28.newObject("Sketcher::SketchObject", "Sketch022")
sketch23.AttachmentSupport = (doc.getObject("XY_Plane027"), [""])
sketch23.MapMode = "FlatFace"
add_polygon(sketch23, [(0, 102), (0, 99), (65, 99), (65, 102)])
sketch23.addConstraint(Sketcher.Constraint("Vertical", 0))
sketch23.addConstraint(Sketcher.Constraint("Horizontal", 1))
sketch23.addConstraint(Sketcher.Constraint("Vertical", 2))
sketch23.addConstraint(Sketcher.Constraint("Horizontal", 3))
sketch23.addConstraint(Sketcher.Constraint("PointOnObject", 0, 2, -2))
sketch23.addConstraint(Sketcher.Constraint("DistanceX", 1, 1, 1, 2, 65.0))
sketch23.addConstraint(Sketcher.Constraint("DistanceY", 0, 2, 0, 1, 3.0))
sketch23.addConstraint(Sketcher.Constraint("DistanceY", -1, 1, 0, 2, 99.0))
pad23 = body28.newObject("PartDesign::Pad", "Pad022")
pad23.Profile = sketch23
pad23.Length = 30
doc.recompute()

boolean19 = body28.newObject("PartDesign::Boolean", "Boolean018")
boolean19.Type = "Cut"
boolean19.addObjects([body27])
doc.recompute()

boolean20 = body28.newObject("PartDesign::Boolean", "Boolean019")
boolean20.Type = "Fuse"
boolean20.addObjects([body15])
doc.recompute()

boolean21 = body28.newObject("PartDesign::Boolean", "Boolean020")
boolean21.Type = "Fuse"
boolean21.addObjects([body16])
doc.recompute()

boolean22 = body28.newObject("PartDesign::Boolean", "Boolean021")
boolean22.Type = "Fuse"
boolean22.addObjects([body17])
doc.recompute()

boolean23 = body28.newObject("PartDesign::Boolean", "Boolean022")
boolean23.Type = "Fuse"
boolean23.addObjects([body22])
body29 = doc.addObject("PartDesign::Body", "Body028")

sketch24 = body29.newObject("Sketcher::SketchObject", "Sketch023")
sketch24.AttachmentSupport = (doc.getObject("XY_Plane028"), [""])
sketch24.MapMode = "FlatFace"
sketch24.addGeometry(Part.Circle(V(6, 29, 0), V(0, 0, 1), 1.6), False)
sketch24.addConstraint(Sketcher.Constraint("Diameter", 0, 3.2))
sketch24.addConstraint(Sketcher.Constraint("DistanceX", -1, 1, 0, 3, 6.0))
sketch24.addConstraint(Sketcher.Constraint("DistanceY", -1, 1, 0, 3, 29.0))
pad24 = body29.newObject("PartDesign::Pad", "Pad023")
pad24.Profile = sketch24
pad24.Length = 30
body30 = doc.addObject("PartDesign::Body", "Body029")

sketch25 = body30.newObject("Sketcher::SketchObject", "Sketch024")
sketch25.AttachmentSupport = (doc.getObject("XY_Plane029"), [""])
sketch25.MapMode = "FlatFace"
sketch25.AttachmentOffset = App.Placement(V(0, 0, 20), App.Rotation())
add_polygon(sketch25, [(3, 32), (3, 27), (10, 27), (10, 32)])
sketch25.addConstraint(Sketcher.Constraint("Vertical", 0))
sketch25.addConstraint(Sketcher.Constraint("Horizontal", 1))
sketch25.addConstraint(Sketcher.Constraint("Vertical", 2))
sketch25.addConstraint(Sketcher.Constraint("Horizontal", 3))
sketch25.addConstraint(Sketcher.Constraint("DistanceY", 0, 2, 0, 1, 5.0))
sketch25.addConstraint(Sketcher.Constraint("DistanceX", 1, 1, 1, 2, 6.5))
sketch25.addConstraint(Sketcher.Constraint("DistanceX", -1, 1, 0, 2, 3.0))
sketch25.addConstraint(Sketcher.Constraint("DistanceY", -1, 1, 0, 2, 27.0))
pad25 = body30.newObject("PartDesign::Pad", "Pad024")
pad25.Profile = sketch25
pad25.Length = 2.5
body31 = doc.addObject("PartDesign::Body", "Body030")

sketch26 = body31.newObject("Sketcher::SketchObject", "Sketch025")
sketch26.AttachmentSupport = (doc.getObject("XY_Plane030"), [""])
sketch26.MapMode = "FlatFace"
sketch26.AttachmentOffset = App.Placement(V(0, 0, 15), App.Rotation())
add_polygon(sketch26, [(2, 32), (2, 26), (10, 26), (10, 32)])
sketch26.addConstraint(Sketcher.Constraint("Vertical", 0))
sketch26.addConstraint(Sketcher.Constraint("Horizontal", 1))
sketch26.addConstraint(Sketcher.Constraint("Vertical", 2))
sketch26.addConstraint(Sketcher.Constraint("Horizontal", 3))
sketch26.addConstraint(Sketcher.Constraint("DistanceX", 1, 1, 1, 2, 8.0))
sketch26.addConstraint(Sketcher.Constraint("DistanceY", 0, 2, 0, 1, 6.0))
sketch26.addConstraint(Sketcher.Constraint("DistanceX", -1, 1, 0, 2, 2.5))
sketch26.addConstraint(Sketcher.Constraint("DistanceY", -1, 1, 0, 2, 25.5))
pad26 = body31.newObject("PartDesign::Pad", "Pad025")
pad26.Profile = sketch26
pad26.Length = 10
doc.recompute()

boolean24 = body31.newObject("PartDesign::Boolean", "Boolean023")
boolean24.Type = "Cut"
boolean24.addObjects([body30])
doc.recompute()

boolean25 = body31.newObject("PartDesign::Boolean", "Boolean024")
boolean25.Type = "Cut"
boolean25.addObjects([body29])
body32 = doc.addObject("PartDesign::Body", "Body031")
body32.AllowCompound = True
doc.recompute()

body31.Placement = App.Placement(V(12, 125, 5), App.Rotation(V(0, 0, 1), 180))
boolean26 = body32.newObject("PartDesign::Boolean", "Boolean025")
boolean26.Type = "Fuse"
boolean26.addObjects([body31])
doc.recompute()

boolean27 = body32.newObject("PartDesign::Boolean", "Boolean026")
boolean27.Type = "Fuse"
boolean27.addObjects([body6])
doc.recompute()

boolean28 = body32.newObject("PartDesign::Boolean", "Boolean027")
boolean28.Type = "Fuse"
boolean28.addObjects([body10])
doc.recompute()

boolean29 = body32.newObject("PartDesign::Boolean", "Boolean028")
boolean29.Type = "Fuse"
boolean29.addObjects([body14])
doc.recompute()

boolean30 = body32.newObject("PartDesign::Boolean", "Boolean029")
boolean30.Type = "Fuse"
boolean30.addObjects([body28])
doc.recompute()

boolean31 = body32.newObject("PartDesign::Boolean", "Boolean030")
boolean31.Type = "Fuse"
boolean31.addObjects([body2])

doc.recompute()
